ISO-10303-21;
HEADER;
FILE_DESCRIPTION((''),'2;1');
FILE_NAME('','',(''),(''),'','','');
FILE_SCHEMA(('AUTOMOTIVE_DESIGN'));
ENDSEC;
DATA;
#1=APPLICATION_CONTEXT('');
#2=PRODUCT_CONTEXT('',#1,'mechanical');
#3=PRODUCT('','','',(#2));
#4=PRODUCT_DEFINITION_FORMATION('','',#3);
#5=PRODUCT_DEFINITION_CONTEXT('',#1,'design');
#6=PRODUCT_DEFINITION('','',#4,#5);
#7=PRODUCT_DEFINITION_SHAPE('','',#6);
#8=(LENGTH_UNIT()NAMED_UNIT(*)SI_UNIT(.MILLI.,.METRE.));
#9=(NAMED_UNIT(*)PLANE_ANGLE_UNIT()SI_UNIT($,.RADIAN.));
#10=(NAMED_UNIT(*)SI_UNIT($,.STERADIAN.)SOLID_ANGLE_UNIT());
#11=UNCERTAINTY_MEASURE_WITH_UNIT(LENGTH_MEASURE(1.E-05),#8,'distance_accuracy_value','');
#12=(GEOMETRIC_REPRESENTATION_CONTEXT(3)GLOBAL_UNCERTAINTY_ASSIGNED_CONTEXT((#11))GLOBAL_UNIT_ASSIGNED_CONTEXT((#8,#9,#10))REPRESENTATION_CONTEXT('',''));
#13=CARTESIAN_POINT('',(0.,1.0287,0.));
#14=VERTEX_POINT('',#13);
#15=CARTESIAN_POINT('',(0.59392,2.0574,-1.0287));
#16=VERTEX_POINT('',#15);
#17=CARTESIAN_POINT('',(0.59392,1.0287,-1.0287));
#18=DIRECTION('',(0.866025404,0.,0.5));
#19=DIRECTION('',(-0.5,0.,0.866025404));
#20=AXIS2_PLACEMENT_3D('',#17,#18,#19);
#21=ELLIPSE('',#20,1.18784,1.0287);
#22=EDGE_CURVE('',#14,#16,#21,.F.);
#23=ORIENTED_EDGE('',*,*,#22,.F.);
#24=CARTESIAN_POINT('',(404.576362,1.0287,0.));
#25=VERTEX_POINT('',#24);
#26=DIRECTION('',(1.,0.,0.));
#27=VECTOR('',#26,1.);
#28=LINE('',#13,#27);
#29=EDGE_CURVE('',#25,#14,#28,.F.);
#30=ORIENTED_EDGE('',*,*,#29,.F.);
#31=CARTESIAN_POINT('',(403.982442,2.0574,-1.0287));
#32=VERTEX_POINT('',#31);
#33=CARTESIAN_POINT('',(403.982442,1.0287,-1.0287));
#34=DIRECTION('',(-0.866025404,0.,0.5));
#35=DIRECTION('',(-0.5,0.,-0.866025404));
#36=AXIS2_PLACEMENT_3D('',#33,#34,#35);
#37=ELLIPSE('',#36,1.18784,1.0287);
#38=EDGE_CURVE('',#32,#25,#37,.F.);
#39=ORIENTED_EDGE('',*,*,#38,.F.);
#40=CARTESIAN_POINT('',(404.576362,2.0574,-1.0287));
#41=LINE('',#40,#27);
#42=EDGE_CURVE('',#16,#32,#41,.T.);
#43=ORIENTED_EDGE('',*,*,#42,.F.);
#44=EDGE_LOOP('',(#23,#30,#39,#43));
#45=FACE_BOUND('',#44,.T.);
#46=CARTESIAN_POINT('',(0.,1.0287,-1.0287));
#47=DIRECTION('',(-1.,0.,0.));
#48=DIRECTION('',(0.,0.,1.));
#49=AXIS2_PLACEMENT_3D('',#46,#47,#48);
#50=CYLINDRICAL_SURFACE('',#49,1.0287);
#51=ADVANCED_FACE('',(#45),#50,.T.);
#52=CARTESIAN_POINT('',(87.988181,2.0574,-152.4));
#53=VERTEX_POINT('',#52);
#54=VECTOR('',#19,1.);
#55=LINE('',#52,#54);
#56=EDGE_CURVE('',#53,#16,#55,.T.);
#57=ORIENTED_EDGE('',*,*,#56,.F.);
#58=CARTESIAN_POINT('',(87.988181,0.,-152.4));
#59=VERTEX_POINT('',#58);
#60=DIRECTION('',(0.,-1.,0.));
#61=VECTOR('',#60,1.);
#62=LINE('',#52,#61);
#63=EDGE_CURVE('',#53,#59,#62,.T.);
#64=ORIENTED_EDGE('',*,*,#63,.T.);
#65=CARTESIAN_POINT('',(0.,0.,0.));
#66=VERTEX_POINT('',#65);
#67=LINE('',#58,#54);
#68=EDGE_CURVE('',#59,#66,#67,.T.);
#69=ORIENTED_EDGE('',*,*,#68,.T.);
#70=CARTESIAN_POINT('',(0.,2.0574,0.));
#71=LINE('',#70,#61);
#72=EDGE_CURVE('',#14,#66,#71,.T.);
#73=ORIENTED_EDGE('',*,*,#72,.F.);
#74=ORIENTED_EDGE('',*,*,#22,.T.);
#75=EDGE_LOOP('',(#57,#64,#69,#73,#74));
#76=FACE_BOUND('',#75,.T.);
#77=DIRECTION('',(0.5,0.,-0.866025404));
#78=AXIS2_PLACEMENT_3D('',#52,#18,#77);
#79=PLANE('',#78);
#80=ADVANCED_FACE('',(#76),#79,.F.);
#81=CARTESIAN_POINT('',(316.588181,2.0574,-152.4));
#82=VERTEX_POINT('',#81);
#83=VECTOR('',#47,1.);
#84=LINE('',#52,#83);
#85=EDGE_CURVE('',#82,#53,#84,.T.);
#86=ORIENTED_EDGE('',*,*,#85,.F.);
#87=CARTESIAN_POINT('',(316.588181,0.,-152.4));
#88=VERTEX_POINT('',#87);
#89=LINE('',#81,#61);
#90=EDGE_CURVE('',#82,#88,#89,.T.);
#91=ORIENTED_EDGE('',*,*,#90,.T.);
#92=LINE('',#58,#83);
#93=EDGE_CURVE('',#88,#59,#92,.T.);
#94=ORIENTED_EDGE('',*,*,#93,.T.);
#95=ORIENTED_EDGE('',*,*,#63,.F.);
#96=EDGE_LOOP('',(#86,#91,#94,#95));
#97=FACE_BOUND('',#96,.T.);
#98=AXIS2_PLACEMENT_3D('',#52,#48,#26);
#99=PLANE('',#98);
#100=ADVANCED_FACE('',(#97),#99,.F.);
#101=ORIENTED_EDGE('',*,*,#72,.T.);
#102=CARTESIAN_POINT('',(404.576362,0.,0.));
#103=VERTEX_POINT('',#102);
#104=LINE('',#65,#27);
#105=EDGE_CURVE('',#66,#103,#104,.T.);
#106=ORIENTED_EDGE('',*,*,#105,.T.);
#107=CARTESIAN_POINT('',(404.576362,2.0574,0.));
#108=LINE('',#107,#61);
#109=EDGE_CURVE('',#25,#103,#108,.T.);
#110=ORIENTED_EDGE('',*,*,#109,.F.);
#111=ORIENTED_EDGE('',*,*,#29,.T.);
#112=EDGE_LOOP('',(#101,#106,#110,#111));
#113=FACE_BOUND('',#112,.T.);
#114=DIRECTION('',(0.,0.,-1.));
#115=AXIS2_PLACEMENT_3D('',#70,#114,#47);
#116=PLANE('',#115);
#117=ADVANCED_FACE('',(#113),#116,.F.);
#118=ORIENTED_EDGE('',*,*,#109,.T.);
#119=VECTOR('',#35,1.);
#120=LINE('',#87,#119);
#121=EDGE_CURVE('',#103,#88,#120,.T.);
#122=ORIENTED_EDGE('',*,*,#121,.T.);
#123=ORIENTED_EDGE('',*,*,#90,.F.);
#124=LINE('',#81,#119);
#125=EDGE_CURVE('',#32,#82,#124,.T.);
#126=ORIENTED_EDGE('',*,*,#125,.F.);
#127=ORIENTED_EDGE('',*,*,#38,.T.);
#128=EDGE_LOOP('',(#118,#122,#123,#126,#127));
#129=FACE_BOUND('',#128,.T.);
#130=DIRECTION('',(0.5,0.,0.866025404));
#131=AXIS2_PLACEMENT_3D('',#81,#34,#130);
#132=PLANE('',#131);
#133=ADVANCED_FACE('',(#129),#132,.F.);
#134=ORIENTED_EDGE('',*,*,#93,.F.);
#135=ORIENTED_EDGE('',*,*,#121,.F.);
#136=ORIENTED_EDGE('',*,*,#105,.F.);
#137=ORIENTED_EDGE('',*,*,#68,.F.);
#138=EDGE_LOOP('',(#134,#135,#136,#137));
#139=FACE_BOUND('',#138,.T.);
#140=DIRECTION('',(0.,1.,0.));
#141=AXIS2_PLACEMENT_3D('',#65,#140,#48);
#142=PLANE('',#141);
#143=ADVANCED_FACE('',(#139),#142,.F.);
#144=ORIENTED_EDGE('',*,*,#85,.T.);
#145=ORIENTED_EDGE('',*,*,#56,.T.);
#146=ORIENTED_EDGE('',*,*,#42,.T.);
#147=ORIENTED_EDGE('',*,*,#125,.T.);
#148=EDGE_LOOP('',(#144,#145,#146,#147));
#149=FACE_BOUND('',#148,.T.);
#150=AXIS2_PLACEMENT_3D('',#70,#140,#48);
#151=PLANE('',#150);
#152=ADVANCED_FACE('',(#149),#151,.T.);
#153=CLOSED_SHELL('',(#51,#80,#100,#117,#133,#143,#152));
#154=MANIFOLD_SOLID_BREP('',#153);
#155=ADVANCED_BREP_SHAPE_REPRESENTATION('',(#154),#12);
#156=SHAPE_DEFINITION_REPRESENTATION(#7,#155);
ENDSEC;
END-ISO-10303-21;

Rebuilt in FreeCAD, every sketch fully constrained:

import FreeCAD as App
import Part
import Sketcher
Q = App.Units.Quantity


def edges_at(feature, points):
    """Names of the edges that pass closest to the given points."""
    edges = feature.Shape.Edges
    near = lambda p: min(range(len(edges)), key=lambda i: edges[i].distToShape(Part.Vertex(*p))[0])
    return sorted({f"Edge{near(p) + 1}" for p in points})

doc = App.newDocument("Part")
body = doc.addObject("PartDesign::Body", "Body")

# Sketch on XZ plane
sketch1 = doc.addObject("Sketcher::SketchObject", "Sketch")
body.addObject(sketch1)
sketch1.AttachmentSupport = (doc.XZ_Plane, [""])
sketch1.MapMode = "FlatFace"
sketch1.addGeometry(Part.LineSegment(App.Vector(0, 0, 0), App.Vector(404.576362, 0, 0)), False)
sketch1.addGeometry(Part.LineSegment(App.Vector(404.576362, 0, 0), App.Vector(316.588181, -152.4, 0)), False)
sketch1.addGeometry(Part.LineSegment(App.Vector(316.588181, -152.4, 0), App.Vector(87.988181, -152.4, 0)), False)
sketch1.addGeometry(Part.LineSegment(App.Vector(87.988181, -152.4, 0), App.Vector(0, 0, 0)), False)
sketch1.addConstraint(Sketcher.Constraint("Coincident", 0, 2, 1, 1))
sketch1.addConstraint(Sketcher.Constraint("Coincident", 1, 2, 2, 1))
sketch1.addConstraint(Sketcher.Constraint("Coincident", 2, 2, 3, 1))
sketch1.addConstraint(Sketcher.Constraint("Coincident", 3, 2, 0, 1))
sketch1.addConstraint(Sketcher.Constraint("Horizontal", 0))
sketch1.addConstraint(Sketcher.Constraint("Horizontal", 2))
sketch1.addConstraint(Sketcher.Constraint("Coincident", 3, 2, -1, 1))
sketch1.addConstraint(Sketcher.Constraint("Equal", 1, 3))
sketch1.addConstraint(Sketcher.Constraint("DistanceX", 2, 2, 2, 1, Q("9 in")))
sketch1.addConstraint(Sketcher.Constraint("DistanceY", 1, 2, -1, 1, Q("6 in")))
sketch1.addConstraint(Sketcher.Constraint("Angle", 1, Q("-120 deg")))
pad1 = doc.addObject("PartDesign::Pad", "Pad")
body.addObject(pad1)
pad1.Profile = sketch1
pad1.Length = Q("0.081 in")
pad1.Reversed = True
doc.recompute()

fillet = doc.addObject("PartDesign::Fillet", "Fillet")
body.addObject(fillet)
fillet.Base = (pad1, edges_at(pad1, [(202.288, 2.057, 0)]))
fillet.Radius = Q("0.0405 in")

doc.recompute()
